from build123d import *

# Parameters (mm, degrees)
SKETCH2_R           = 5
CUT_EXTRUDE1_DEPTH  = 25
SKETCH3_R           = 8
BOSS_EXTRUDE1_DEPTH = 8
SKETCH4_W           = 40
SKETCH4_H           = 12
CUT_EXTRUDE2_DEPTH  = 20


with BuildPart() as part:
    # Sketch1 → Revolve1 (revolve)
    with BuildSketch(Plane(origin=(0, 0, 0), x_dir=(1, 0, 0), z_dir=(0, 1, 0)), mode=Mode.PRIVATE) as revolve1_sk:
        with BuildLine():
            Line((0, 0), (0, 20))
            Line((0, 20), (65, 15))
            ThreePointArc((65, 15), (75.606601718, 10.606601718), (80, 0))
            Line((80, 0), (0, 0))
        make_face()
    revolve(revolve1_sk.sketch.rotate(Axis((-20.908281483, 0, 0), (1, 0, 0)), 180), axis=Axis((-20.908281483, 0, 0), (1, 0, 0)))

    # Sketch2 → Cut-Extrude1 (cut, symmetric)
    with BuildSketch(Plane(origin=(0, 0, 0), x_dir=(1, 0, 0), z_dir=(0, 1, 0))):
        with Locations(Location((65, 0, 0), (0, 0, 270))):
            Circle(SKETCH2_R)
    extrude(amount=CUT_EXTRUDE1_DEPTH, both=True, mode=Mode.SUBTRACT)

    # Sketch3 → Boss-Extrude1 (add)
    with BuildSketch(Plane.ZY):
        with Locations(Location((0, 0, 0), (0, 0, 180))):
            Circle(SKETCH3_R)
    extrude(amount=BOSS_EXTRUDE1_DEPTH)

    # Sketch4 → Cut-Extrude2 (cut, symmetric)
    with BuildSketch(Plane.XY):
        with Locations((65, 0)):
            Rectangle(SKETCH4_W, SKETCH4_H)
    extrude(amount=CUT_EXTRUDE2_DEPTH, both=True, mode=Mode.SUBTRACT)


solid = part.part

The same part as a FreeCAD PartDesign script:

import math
import FreeCAD as App
import Part
import Sketcher
from FreeCAD import Vector

doc = App.newDocument("Part")
params = doc.addObject("Spreadsheet::Sheet", "Params")
for row, (alias, value) in enumerate([
    ("sketch1_radius", "15 mm"),
    ("sketch1_width", "80 mm"),
    ("sketch1_height", "20 mm"),
    ("revolution_angle", "360 deg"),
    ("sketch2_diameter", "10 mm"),
    ("pocket1_length", "50 mm"),
    ("sketch3_diameter", "16 mm"),
    ("pad1_length", "8 mm"),
    ("sketch4_width", "40 mm"),
    ("sketch4_height", "12 mm"),
    ("pocket2_length", "40 mm"),
], start=1):
    params.set(f"A{row}", alias)
    params.set(f"B{row}", "=" + value)
    params.setAlias(f"B{row}", alias)

body = doc.addObject("PartDesign::Body", "Body")

sketch1 = body.newObject("Sketcher::SketchObject", "Sketch")
sketch1.AttachmentSupport = (doc.getObject("XZ_Plane"), [""])
sketch1.MapMode = "FlatFace"
sketch1.addGeometry(Part.LineSegment(Vector(0, -20, 0), Vector(0, 0, 0)), False)
sketch1.addGeometry(Part.LineSegment(Vector(0, 0, 0), Vector(80, 0, 0)), False)
sketch1.addGeometry(Part.ArcOfCircle(Part.Circle(Vector(65, 0, 0), Vector(0, 0, 1), 15), math.radians(-90), math.radians(0)), False)
sketch1.addGeometry(Part.LineSegment(Vector(65, -15, 0), Vector(0, -20, 0)), False)
sketch1.addConstraint(Sketcher.Constraint("Coincident", 0, 2, 1, 1))
sketch1.addConstraint(Sketcher.Constraint("Coincident", 1, 2, 2, 2))
sketch1.addConstraint(Sketcher.Constraint("Coincident", 2, 1, 3, 1))
sketch1.addConstraint(Sketcher.Constraint("Coincident", 3, 2, 0, 1))
sketch1.addConstraint(Sketcher.Constraint("Vertical", 0))
sketch1.addConstraint(Sketcher.Constraint("Horizontal", 1))
sketch1.addConstraint(Sketcher.Constraint("Coincident", 0, 2, -1, 1))
sketch1.addConstraint(Sketcher.Constraint("PointOnObject", 2, 3, -1))
sketch1.addConstraint(Sketcher.Constraint("Radius", 2, 15.0))
sketch1.addConstraint(Sketcher.Constraint("DistanceX", 1, 1, 1, 2, 80.0))
sketch1.addConstraint(Sketcher.Constraint("DistanceY", 0, 1, 0, 2, 20.0))
sketch1.addConstraint(Sketcher.Constraint("DistanceX", -1, 1, 2, 1, 65.0))
sketch1.setExpression("Constraints[8]", "Params.sketch1_radius")
sketch1.setExpression("Constraints[9]", "Params.sketch1_width")
sketch1.setExpression("Constraints[10]", "Params.sketch1_height")
revolution = body.newObject("PartDesign::Revolution", "Revolution")
revolution.Profile = sketch1
revolution.ReferenceAxis = (sketch1, ["H_Axis"])
revolution.setExpression("Angle", "Params.revolution_angle")

sketch2 = body.newObject("Sketcher::SketchObject", "Sketch001")
sketch2.AttachmentSupport = (doc.getObject("XZ_Plane"), [""])
sketch2.MapMode = "FlatFace"
sketch2.addGeometry(Part.Circle(Vector(65, 0, 0), Vector(0, 0, 1), 5), False)
sketch2.addConstraint(Sketcher.Constraint("PointOnObject", 0, 3, -1))
sketch2.addConstraint(Sketcher.Constraint("Diameter", 0, 10.0))
sketch2.addConstraint(Sketcher.Constraint("DistanceX", -1, 1, 0, 3, 65.0))
sketch2.setExpression("Constraints[1]", "Params.sketch2_diameter")
pocket1 = body.newObject("PartDesign::Pocket", "Pocket")
pocket1.Profile = sketch2
pocket1.setExpression("Length", "Params.pocket1_length")
pocket1.Midplane = True

sketch3 = body.newObject("Sketcher::SketchObject", "Sketch002")
sketch3.AttachmentSupport = (doc.getObject("YZ_Plane"), [""])
sketch3.MapMode = "FlatFace"
sketch3.addGeometry(Part.Circle(Vector(0, 0, 0), Vector(0, 0, 1), 8), False)
sketch3.addConstraint(Sketcher.Constraint("Coincident", 0, 3, -1, 1))
sketch3.addConstraint(Sketcher.Constraint("Diameter", 0, 16.0))
sketch3.setExpression("Constraints[1]", "Params.sketch3_diameter")
pad1 = body.newObject("PartDesign::Pad", "Pad")
pad1.Profile = sketch3
pad1.setExpression("Length", "Params.pad1_length")
pad1.Reversed = True

sketch4 = body.newObject("Sketcher::SketchObject", "Sketch003")
sketch4.AttachmentSupport = (doc.getObject("XY_Plane"), [""])
sketch4.MapMode = "FlatFace"
sketch4.addGeometry(Part.LineSegment(Vector(45, 6, 0), Vector(45, -6, 0)), False)
sketch4.addGeometry(Part.LineSegment(Vector(45, -6, 0), Vector(85, -6, 0)), False)
sketch4.addGeometry(Part.LineSegment(Vector(85, -6, 0), Vector(85, 6, 0)), False)
sketch4.addGeometry(Part.LineSegment(Vector(85, 6, 0), Vector(45, 6, 0)), False)
sketch4.addConstraint(Sketcher.Constraint("Coincident", 0, 2, 1, 1))
sketch4.addConstraint(Sketcher.Constraint("Coincident", 1, 2, 2, 1))
sketch4.addConstraint(Sketcher.Constraint("Coincident", 2, 2, 3, 1))
sketch4.addConstraint(Sketcher.Constraint("Coincident", 3, 2, 0, 1))
sketch4.addConstraint(Sketcher.Constraint("Vertical", 0))
sketch4.addConstraint(Sketcher.Constraint("Horizontal", 1))
sketch4.addConstraint(Sketcher.Constraint("Vertical", 2))
sketch4.addConstraint(Sketcher.Constraint("Horizontal", 3))
sketch4.addConstraint(Sketcher.Constraint("DistanceX", 1, 1, 1, 2, 40.0))
sketch4.addConstraint(Sketcher.Constraint("DistanceY", 0, 2, 0, 1, 12.0))
sketch4.addConstraint(Sketcher.Constraint("DistanceX", -1, 1, 0, 2, 45.0))
sketch4.addConstraint(Sketcher.Constraint("DistanceY", 0, 2, -1, 1, 6.0))
sketch4.setExpression("Constraints[8]", "Params.sketch4_width")
sketch4.setExpression("Constraints[9]", "Params.sketch4_height")
pocket2 = body.newObject("PartDesign::Pocket", "Pocket001")
pocket2.Profile = sketch4
pocket2.setExpression("Length", "Params.pocket2_length")
pocket2.Midplane = True

doc.recompute()
